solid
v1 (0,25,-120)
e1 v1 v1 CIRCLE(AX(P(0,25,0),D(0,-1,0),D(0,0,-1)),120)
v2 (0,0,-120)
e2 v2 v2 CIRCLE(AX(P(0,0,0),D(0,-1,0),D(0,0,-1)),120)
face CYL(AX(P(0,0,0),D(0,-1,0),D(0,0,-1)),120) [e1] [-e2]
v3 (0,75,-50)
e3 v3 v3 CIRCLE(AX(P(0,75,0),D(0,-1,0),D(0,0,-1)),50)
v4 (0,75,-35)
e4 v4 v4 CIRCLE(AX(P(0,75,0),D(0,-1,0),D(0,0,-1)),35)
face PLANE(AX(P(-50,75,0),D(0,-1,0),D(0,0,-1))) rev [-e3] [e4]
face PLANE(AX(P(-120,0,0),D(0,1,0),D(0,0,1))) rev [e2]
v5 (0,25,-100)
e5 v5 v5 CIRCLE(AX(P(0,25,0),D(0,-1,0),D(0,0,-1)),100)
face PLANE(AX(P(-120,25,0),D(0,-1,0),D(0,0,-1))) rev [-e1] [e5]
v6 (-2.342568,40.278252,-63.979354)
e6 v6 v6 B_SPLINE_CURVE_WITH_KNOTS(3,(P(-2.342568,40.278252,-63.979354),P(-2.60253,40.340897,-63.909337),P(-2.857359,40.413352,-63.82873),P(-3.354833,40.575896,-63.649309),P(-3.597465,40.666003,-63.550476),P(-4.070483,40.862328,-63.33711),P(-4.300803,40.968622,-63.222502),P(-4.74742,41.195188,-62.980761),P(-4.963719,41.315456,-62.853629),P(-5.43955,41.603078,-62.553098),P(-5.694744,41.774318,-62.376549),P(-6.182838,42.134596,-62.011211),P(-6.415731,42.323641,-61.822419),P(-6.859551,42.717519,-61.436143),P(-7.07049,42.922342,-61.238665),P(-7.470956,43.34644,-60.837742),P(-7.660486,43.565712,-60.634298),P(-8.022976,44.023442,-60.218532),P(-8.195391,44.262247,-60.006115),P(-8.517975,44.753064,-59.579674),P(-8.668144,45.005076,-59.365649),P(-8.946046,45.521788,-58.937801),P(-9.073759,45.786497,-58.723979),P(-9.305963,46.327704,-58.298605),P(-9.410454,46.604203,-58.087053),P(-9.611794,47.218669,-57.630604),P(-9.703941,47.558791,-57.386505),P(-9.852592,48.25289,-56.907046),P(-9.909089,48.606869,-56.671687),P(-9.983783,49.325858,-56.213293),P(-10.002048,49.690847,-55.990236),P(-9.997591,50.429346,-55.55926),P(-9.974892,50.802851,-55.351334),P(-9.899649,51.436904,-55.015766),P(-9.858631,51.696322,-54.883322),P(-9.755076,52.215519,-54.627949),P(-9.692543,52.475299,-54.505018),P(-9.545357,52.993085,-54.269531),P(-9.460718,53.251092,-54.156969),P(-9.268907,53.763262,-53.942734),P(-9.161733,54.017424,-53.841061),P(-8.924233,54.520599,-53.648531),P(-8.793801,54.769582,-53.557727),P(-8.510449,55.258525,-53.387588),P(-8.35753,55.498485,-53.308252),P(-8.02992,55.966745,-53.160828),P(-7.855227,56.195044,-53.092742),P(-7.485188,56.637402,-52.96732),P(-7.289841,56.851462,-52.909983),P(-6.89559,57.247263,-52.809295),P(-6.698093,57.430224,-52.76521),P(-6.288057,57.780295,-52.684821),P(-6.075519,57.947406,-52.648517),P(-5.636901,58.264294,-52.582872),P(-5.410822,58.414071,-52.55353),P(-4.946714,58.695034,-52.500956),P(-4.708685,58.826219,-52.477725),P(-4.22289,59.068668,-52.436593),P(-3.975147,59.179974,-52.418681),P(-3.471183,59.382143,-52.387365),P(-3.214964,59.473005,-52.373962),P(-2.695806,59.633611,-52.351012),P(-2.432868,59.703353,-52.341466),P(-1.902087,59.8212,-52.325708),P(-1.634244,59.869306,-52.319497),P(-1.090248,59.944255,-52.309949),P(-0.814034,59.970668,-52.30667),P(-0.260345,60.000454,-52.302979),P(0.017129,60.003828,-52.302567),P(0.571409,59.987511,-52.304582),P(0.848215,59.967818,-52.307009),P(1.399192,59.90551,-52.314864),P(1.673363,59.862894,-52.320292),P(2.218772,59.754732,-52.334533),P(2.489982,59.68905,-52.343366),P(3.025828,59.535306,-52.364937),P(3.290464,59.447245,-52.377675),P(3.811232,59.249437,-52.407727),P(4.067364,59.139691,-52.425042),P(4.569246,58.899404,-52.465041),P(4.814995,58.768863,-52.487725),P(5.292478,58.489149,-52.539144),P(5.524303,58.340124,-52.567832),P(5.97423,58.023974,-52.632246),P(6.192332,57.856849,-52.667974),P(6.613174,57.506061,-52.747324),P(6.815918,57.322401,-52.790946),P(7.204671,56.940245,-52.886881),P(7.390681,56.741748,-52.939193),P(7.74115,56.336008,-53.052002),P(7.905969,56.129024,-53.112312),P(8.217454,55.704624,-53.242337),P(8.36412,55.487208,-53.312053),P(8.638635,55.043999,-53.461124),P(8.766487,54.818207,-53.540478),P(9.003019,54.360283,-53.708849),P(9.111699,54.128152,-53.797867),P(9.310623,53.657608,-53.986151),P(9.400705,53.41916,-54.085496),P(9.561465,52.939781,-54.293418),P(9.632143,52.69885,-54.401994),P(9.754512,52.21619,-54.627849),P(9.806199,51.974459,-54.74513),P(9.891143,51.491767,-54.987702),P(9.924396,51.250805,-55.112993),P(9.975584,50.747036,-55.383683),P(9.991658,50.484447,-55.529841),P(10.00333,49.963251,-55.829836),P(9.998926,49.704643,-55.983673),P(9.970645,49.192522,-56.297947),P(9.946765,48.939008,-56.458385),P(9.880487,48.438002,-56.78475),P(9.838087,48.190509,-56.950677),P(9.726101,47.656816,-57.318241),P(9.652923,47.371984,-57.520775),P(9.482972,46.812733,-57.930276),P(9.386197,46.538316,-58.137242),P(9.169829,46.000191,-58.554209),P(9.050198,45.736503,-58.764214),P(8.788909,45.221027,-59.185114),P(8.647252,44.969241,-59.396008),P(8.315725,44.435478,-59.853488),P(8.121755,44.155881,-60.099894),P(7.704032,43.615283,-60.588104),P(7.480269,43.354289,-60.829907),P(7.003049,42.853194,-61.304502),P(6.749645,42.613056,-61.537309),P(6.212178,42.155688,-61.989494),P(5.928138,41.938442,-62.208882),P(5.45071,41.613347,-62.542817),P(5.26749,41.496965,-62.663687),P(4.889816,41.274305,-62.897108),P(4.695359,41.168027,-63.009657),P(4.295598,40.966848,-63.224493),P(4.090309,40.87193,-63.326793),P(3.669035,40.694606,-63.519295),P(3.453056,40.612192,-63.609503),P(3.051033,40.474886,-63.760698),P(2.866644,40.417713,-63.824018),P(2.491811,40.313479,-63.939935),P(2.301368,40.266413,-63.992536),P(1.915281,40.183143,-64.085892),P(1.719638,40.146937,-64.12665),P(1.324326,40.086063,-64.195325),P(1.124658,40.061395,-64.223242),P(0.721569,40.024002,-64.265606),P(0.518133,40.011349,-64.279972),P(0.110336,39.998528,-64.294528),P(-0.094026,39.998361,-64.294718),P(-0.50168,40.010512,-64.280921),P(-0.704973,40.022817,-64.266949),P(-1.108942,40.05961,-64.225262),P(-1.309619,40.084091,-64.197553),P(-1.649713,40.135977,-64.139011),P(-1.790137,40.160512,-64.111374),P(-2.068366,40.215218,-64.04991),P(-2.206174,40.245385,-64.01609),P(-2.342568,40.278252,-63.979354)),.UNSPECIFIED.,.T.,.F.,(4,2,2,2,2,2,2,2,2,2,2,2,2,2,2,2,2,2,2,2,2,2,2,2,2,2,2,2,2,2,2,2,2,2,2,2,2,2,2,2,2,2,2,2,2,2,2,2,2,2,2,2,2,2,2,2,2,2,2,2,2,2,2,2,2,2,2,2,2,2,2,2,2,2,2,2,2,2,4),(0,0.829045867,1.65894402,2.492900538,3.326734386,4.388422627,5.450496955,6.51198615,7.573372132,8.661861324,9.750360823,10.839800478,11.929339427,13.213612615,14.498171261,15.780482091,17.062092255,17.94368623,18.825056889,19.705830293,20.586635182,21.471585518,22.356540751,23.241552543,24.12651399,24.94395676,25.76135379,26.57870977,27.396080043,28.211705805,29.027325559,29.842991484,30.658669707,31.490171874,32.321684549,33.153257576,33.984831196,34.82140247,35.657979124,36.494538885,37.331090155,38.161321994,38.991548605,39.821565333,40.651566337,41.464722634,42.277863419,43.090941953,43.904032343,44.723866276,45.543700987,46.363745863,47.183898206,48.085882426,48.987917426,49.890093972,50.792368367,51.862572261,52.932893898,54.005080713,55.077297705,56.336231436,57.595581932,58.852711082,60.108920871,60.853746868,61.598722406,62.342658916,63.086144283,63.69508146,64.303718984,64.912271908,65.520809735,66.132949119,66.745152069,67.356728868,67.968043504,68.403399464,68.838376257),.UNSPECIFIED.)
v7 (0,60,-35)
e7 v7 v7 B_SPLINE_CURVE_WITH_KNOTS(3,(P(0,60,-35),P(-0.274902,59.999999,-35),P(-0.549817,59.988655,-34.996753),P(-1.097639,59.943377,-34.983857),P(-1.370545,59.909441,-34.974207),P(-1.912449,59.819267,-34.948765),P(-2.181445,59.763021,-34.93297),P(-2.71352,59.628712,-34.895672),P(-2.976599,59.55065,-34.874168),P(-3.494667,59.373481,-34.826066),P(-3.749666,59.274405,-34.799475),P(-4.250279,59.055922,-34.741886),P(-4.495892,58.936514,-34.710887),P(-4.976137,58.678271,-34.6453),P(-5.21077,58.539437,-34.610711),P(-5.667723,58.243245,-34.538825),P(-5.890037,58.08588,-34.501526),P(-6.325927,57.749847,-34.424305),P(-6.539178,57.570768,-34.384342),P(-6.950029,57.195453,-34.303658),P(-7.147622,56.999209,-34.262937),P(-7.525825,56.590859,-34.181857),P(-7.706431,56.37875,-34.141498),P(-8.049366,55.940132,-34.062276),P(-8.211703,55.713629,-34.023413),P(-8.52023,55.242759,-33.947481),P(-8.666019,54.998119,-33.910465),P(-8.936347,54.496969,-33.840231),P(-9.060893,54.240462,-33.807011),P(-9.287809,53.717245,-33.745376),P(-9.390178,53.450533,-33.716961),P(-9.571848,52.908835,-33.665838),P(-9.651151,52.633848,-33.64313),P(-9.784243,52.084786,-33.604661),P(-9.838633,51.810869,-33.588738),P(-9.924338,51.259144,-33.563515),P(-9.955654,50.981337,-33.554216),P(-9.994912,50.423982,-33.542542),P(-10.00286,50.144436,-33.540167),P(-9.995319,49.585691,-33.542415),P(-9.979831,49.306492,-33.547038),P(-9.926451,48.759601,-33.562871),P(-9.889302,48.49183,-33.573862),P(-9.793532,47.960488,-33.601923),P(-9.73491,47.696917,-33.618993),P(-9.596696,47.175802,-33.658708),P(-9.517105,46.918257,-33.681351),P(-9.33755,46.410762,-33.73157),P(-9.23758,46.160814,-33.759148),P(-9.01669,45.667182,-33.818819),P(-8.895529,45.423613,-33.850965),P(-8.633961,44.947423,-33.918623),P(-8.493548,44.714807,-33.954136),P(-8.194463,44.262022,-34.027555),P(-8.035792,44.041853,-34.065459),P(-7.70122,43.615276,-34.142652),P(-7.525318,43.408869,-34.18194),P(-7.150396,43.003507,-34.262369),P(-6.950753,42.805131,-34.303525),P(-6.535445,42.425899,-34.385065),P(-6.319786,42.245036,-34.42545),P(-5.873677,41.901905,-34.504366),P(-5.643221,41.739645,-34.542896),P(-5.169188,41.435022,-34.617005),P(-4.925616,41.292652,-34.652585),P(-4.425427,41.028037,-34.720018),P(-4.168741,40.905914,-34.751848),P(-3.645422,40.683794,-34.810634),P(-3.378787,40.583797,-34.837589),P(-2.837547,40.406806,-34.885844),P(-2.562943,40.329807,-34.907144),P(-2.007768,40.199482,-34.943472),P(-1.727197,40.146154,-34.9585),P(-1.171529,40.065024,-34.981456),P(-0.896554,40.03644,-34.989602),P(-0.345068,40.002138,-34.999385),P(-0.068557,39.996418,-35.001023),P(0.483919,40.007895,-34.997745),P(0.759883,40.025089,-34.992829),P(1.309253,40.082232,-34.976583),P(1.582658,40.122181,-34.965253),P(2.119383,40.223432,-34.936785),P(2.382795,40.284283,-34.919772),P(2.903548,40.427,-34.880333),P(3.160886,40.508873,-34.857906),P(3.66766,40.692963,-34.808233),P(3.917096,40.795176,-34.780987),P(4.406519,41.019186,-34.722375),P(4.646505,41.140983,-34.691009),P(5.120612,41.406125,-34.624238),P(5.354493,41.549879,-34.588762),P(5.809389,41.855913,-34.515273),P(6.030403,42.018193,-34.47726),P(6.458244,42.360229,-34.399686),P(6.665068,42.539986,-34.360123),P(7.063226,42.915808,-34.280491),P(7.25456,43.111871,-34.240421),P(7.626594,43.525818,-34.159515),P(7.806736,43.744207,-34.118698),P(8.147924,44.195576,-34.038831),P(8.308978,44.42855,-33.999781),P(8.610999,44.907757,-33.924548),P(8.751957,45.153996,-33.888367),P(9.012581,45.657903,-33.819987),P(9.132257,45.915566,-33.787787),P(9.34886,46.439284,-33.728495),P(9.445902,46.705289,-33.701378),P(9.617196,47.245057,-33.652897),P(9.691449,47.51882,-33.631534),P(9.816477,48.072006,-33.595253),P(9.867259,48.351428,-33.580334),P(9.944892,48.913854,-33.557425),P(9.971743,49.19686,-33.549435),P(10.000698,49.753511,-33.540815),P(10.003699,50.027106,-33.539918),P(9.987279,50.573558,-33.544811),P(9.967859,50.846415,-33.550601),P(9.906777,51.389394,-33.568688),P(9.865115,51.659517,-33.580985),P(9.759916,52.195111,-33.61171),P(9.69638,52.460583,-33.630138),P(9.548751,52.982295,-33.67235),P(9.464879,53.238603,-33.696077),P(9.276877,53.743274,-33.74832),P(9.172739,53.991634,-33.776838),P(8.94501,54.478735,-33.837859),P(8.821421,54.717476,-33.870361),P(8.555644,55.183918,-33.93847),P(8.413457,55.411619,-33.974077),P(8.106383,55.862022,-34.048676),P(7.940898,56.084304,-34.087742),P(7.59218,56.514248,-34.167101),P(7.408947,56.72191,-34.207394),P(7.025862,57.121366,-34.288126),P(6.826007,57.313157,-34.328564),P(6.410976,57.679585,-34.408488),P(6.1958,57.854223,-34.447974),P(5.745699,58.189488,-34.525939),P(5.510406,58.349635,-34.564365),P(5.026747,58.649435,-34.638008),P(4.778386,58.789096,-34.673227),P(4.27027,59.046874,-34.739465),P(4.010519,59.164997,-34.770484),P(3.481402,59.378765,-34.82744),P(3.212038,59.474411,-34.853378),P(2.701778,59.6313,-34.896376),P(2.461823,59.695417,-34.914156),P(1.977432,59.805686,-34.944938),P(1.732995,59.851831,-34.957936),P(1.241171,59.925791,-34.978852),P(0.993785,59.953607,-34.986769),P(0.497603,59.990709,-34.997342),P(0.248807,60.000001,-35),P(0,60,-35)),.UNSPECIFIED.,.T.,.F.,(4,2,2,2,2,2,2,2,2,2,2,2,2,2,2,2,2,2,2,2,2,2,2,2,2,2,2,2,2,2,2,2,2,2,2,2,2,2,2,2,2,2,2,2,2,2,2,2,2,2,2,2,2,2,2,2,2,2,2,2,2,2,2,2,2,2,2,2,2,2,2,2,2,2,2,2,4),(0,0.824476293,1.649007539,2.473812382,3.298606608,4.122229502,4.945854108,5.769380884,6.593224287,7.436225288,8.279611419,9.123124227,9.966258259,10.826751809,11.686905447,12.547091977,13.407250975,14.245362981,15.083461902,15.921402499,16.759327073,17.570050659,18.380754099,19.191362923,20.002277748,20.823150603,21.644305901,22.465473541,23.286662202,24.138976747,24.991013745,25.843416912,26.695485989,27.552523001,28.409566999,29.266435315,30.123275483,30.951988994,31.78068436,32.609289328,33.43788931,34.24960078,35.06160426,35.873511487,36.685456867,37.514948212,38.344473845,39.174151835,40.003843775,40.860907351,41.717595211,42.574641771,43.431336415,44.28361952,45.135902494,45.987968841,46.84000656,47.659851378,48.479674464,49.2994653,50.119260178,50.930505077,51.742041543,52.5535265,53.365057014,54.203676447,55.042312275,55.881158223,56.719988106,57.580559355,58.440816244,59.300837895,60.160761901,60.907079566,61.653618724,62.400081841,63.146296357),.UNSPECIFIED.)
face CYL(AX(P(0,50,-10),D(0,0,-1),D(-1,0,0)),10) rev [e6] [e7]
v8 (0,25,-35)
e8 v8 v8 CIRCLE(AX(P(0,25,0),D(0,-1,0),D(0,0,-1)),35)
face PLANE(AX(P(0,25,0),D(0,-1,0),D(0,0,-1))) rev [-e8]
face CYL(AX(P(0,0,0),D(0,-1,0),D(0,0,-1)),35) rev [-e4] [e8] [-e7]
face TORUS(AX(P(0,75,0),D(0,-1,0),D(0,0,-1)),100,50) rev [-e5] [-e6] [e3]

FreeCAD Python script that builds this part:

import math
import FreeCAD as App
import Part
import Sketcher
Q = App.Units.Quantity

doc = App.newDocument("Part")
params = doc.addObject("Spreadsheet::Sheet", "Params")
for row, (alias, value) in enumerate([
    ("sketch1_radius", "50 mm"),
    ("sketch1_width", "120 mm"),
    ("sketch1_width2", "35 mm"),
    ("sketch1_width3", "15 mm"),
    ("sketch1_height", "25 mm"),
    ("revolution_angle", "360 deg"),
    ("sketch2_diameter", "20 mm"),
    ("pocket1_length", "30 mm"),
    ("pocket1_length2", "214.600094 mm"),
], start=1):
    params.set(f"A{row}", alias)
    params.set(f"B{row}", "=" + value)
    params.setAlias(f"B{row}", alias)

body = doc.addObject("PartDesign::Body", "Body")

# Sketch on XY plane
sketch1 = doc.addObject("Sketcher::SketchObject", "Sketch")
body.addObject(sketch1)
sketch1.AttachmentSupport = (doc.XY_Plane, [""])
sketch1.MapMode = "FlatFace"
sketch1.addGeometry([
    Part.LineSegment(App.Vector(-120, 25, 0), App.Vector(-120, 0, 0)),  # 0
    Part.LineSegment(App.Vector(-120, 0, 0), App.Vector(0, 0, 0)),  # 1
    Part.LineSegment(App.Vector(0, 0, 0), App.Vector(0, 25, 0)),  # 2
    Part.LineSegment(App.Vector(0, 25, 0), App.Vector(-35, 25, 0)),  # 3
    Part.LineSegment(App.Vector(-35, 25, 0), App.Vector(-35, 75, 0)),  # 4
    Part.LineSegment(App.Vector(-35, 75, 0), App.Vector(-50, 75, 0)),  # 5
    Part.ArcOfCircle(Part.Circle(App.Vector(-100, 75, 0), App.Vector(0, 0, 1), 50), math.radians(-90), math.radians(0)),  # 6
    Part.LineSegment(App.Vector(-100, 25, 0), App.Vector(-120, 25, 0)),  # 7
], False)
sketch1.addConstraint([
    Sketcher.Constraint("Coincident", 0, 2, 1, 1),
    Sketcher.Constraint("Coincident", 1, 2, 2, 1),
    Sketcher.Constraint("Coincident", 2, 2, 3, 1),
    Sketcher.Constraint("Coincident", 3, 2, 4, 1),
    Sketcher.Constraint("Coincident", 4, 2, 5, 1),
    Sketcher.Constraint("Coincident", 5, 2, 6, 2),
    Sketcher.Constraint("Tangent", 6, 1, 7, 1),
    Sketcher.Constraint("Coincident", 7, 2, 0, 1),
    Sketcher.Constraint("Vertical", 0),
    Sketcher.Constraint("Horizontal", 1),
    Sketcher.Constraint("Vertical", 2),
    Sketcher.Constraint("Horizontal", 3),
    Sketcher.Constraint("Vertical", 4),
    Sketcher.Constraint("Horizontal", 5),
    Sketcher.Constraint("Horizontal", 7),
    Sketcher.Constraint("Coincident", 1, 2, -1, 1),
    Sketcher.Constraint("Horizontal", 6, 3, 4, 2),
    Sketcher.Constraint("Horizontal", 3, 2, 6, 1),
    Sketcher.Constraint("Radius", 6, Q("50 mm")),
    Sketcher.Constraint("DistanceX", 1, 1, 1, 2, Q("120 mm")),
    Sketcher.Constraint("DistanceX", 3, 2, 3, 1, Q("35 mm")),
    Sketcher.Constraint("DistanceX", 5, 2, 5, 1, Q("15 mm")),
    Sketcher.Constraint("DistanceY", 0, 2, 0, 1, Q("25 mm")),
])
sketch1.setExpression("Constraints[18]", "Params.sketch1_radius")
sketch1.setExpression("Constraints[19]", "Params.sketch1_width")
sketch1.setExpression("Constraints[20]", "Params.sketch1_width2")
sketch1.setExpression("Constraints[21]", "Params.sketch1_width3")
sketch1.setExpression("Constraints[22]", "Params.sketch1_height")
revolution = doc.addObject("PartDesign::Revolution", "Revolution")
body.addObject(revolution)
revolution.Profile = sketch1
revolution.ReferenceAxis = (sketch1, ["V_Axis"])
revolution.setExpression("Angle", "Params.revolution_angle")

# Sketch on XY plane
sketch2 = doc.addObject("Sketcher::SketchObject", "Sketch001")
body.addObject(sketch2)
sketch2.AttachmentSupport = (doc.XY_Plane, [""])
sketch2.MapMode = "FlatFace"
sketch2.AttachmentOffset = App.Placement(App.Vector(0, 0, -40), App.Rotation())
sketch2.addGeometry(Part.Circle(App.Vector(0, 50, 0), App.Vector(0, 0, 1), 10), False)
sketch2.addConstraint([
    Sketcher.Constraint("PointOnObject", 0, 3, -2),
    Sketcher.Constraint("Diameter", 0, Q("20 mm")),
    Sketcher.Constraint("DistanceY", -1, 1, 0, 3, Q("50 mm")),
])
sketch2.setExpression("Constraints[1]", "Params.sketch2_diameter")
pocket1 = doc.addObject("PartDesign::Pocket", "Pocket")
body.addObject(pocket1)
pocket1.Profile = sketch2
pocket1.Type = "TwoLengths"
pocket1.setExpression("Length", "Params.pocket1_length")
pocket1.setExpression("Length2", "Params.pocket1_length2")
pocket1.Reversed = True

doc.recompute()
